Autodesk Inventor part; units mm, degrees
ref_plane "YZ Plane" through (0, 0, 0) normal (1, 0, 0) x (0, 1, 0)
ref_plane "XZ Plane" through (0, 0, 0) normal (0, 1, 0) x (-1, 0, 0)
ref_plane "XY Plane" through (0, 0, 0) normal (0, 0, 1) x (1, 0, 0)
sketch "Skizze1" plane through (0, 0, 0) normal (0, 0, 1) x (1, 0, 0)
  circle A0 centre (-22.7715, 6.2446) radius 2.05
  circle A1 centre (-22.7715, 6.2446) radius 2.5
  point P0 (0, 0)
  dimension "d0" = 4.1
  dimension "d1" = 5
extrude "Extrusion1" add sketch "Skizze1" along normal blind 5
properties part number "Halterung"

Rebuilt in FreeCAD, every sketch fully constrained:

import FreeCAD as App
import Part
import Sketcher
Q = App.Units.Quantity

doc = App.newDocument("Part")
body = doc.addObject("PartDesign::Body", "Body")

sketch1 = body.newObject("Sketcher::SketchObject", "Sketch")
sketch1.AttachmentSupport = (doc.getObject("XY_Plane"), [""])
sketch1.MapMode = "FlatFace"
sketch1.addGeometry([
    Part.Circle(App.Vector(-22.8, 6.2, 0), App.Vector(0, 0, 1), 2.5),
    Part.Circle(App.Vector(-22.8, 6.2, 0), App.Vector(0, 0, 1), 2),
], False)
sketch1.addConstraint([
    Sketcher.Constraint("Coincident", 1, 3, 0, 3),
    Sketcher.Constraint("Diameter", 0, Q("5 mm")),
    Sketcher.Constraint("Diameter", 1, Q("4.1 mm")),
    Sketcher.Constraint("DistanceX", 0, 3, -1, 1, Q("22.7715 mm")),
    Sketcher.Constraint("DistanceY", -1, 1, 0, 3, Q("6.2446 mm")),
])
pad1 = body.newObject("PartDesign::Pad", "Pad")
pad1.Profile = sketch1
pad1.Length = 5

doc.recompute()
